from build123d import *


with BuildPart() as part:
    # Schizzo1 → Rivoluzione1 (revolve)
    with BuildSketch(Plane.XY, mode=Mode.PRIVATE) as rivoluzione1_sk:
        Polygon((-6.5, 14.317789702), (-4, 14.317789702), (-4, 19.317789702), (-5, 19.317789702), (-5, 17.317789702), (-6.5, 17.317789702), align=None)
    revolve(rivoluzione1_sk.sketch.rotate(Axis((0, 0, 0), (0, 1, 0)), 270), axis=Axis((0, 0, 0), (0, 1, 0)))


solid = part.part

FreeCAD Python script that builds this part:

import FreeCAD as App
import Part
import Sketcher

V = App.Vector


def add_polygon(sketch, points):
    """Adds a closed chain of lines whose ends are joined by coincident constraints."""
    first, n = sketch.GeometryCount, len(points)
    for a, b in zip(points, points[1:] + points[:1]):
        sketch.addGeometry(Part.LineSegment(App.Vector(*a, 0), App.Vector(*b, 0)), False)
    for i in range(n):
        sketch.addConstraint(Sketcher.Constraint("Coincident", first + i, 2, first + (i + 1) % n, 1))

doc = App.newDocument("Part")
body = doc.addObject("PartDesign::Body", "Body")

sketch1 = doc.addObject("Sketcher::SketchObject", "Sketch")
body.addObject(sketch1)
sketch1.AttachmentSupport = (doc.XY_Plane, [""])
sketch1.MapMode = "FlatFace"
add_polygon(sketch1, [(-6.5, 14.3), (-4, 14.3), (-4, 19.3), (-5, 19.3), (-5, 17.3), (-6.5, 17.3)])
sketch1.addConstraint(Sketcher.Constraint("Horizontal", 0))
sketch1.addConstraint(Sketcher.Constraint("Vertical", 1))
sketch1.addConstraint(Sketcher.Constraint("Horizontal", 2))
sketch1.addConstraint(Sketcher.Constraint("Vertical", 3))
sketch1.addConstraint(Sketcher.Constraint("Horizontal", 4))
sketch1.addConstraint(Sketcher.Constraint("Vertical", 5))
sketch1.addConstraint(Sketcher.Constraint("DistanceX", 2, 2, 2, 1, 1.0))
sketch1.addConstraint(Sketcher.Constraint("DistanceY", 1, 1, 1, 2, 5.0))
sketch1.addConstraint(Sketcher.Constraint("DistanceY", 3, 2, 3, 1, 2.0))
sketch1.addConstraint(Sketcher.Constraint("DistanceX", 0, 1, 0, 2, 2.5))
sketch1.addConstraint(Sketcher.Constraint("DistanceX", 0, 2, -1, 1, 4.0))
sketch1.addConstraint(Sketcher.Constraint("DistanceY", -1, 1, 0, 2, 14.31779))
revolution = doc.addObject("PartDesign::Revolution", "Revolution")
body.addObject(revolution)
revolution.Profile = sketch1
revolution.ReferenceAxis = (sketch1, ["V_Axis"])
revolution.Angle = 360

doc.recompute()
